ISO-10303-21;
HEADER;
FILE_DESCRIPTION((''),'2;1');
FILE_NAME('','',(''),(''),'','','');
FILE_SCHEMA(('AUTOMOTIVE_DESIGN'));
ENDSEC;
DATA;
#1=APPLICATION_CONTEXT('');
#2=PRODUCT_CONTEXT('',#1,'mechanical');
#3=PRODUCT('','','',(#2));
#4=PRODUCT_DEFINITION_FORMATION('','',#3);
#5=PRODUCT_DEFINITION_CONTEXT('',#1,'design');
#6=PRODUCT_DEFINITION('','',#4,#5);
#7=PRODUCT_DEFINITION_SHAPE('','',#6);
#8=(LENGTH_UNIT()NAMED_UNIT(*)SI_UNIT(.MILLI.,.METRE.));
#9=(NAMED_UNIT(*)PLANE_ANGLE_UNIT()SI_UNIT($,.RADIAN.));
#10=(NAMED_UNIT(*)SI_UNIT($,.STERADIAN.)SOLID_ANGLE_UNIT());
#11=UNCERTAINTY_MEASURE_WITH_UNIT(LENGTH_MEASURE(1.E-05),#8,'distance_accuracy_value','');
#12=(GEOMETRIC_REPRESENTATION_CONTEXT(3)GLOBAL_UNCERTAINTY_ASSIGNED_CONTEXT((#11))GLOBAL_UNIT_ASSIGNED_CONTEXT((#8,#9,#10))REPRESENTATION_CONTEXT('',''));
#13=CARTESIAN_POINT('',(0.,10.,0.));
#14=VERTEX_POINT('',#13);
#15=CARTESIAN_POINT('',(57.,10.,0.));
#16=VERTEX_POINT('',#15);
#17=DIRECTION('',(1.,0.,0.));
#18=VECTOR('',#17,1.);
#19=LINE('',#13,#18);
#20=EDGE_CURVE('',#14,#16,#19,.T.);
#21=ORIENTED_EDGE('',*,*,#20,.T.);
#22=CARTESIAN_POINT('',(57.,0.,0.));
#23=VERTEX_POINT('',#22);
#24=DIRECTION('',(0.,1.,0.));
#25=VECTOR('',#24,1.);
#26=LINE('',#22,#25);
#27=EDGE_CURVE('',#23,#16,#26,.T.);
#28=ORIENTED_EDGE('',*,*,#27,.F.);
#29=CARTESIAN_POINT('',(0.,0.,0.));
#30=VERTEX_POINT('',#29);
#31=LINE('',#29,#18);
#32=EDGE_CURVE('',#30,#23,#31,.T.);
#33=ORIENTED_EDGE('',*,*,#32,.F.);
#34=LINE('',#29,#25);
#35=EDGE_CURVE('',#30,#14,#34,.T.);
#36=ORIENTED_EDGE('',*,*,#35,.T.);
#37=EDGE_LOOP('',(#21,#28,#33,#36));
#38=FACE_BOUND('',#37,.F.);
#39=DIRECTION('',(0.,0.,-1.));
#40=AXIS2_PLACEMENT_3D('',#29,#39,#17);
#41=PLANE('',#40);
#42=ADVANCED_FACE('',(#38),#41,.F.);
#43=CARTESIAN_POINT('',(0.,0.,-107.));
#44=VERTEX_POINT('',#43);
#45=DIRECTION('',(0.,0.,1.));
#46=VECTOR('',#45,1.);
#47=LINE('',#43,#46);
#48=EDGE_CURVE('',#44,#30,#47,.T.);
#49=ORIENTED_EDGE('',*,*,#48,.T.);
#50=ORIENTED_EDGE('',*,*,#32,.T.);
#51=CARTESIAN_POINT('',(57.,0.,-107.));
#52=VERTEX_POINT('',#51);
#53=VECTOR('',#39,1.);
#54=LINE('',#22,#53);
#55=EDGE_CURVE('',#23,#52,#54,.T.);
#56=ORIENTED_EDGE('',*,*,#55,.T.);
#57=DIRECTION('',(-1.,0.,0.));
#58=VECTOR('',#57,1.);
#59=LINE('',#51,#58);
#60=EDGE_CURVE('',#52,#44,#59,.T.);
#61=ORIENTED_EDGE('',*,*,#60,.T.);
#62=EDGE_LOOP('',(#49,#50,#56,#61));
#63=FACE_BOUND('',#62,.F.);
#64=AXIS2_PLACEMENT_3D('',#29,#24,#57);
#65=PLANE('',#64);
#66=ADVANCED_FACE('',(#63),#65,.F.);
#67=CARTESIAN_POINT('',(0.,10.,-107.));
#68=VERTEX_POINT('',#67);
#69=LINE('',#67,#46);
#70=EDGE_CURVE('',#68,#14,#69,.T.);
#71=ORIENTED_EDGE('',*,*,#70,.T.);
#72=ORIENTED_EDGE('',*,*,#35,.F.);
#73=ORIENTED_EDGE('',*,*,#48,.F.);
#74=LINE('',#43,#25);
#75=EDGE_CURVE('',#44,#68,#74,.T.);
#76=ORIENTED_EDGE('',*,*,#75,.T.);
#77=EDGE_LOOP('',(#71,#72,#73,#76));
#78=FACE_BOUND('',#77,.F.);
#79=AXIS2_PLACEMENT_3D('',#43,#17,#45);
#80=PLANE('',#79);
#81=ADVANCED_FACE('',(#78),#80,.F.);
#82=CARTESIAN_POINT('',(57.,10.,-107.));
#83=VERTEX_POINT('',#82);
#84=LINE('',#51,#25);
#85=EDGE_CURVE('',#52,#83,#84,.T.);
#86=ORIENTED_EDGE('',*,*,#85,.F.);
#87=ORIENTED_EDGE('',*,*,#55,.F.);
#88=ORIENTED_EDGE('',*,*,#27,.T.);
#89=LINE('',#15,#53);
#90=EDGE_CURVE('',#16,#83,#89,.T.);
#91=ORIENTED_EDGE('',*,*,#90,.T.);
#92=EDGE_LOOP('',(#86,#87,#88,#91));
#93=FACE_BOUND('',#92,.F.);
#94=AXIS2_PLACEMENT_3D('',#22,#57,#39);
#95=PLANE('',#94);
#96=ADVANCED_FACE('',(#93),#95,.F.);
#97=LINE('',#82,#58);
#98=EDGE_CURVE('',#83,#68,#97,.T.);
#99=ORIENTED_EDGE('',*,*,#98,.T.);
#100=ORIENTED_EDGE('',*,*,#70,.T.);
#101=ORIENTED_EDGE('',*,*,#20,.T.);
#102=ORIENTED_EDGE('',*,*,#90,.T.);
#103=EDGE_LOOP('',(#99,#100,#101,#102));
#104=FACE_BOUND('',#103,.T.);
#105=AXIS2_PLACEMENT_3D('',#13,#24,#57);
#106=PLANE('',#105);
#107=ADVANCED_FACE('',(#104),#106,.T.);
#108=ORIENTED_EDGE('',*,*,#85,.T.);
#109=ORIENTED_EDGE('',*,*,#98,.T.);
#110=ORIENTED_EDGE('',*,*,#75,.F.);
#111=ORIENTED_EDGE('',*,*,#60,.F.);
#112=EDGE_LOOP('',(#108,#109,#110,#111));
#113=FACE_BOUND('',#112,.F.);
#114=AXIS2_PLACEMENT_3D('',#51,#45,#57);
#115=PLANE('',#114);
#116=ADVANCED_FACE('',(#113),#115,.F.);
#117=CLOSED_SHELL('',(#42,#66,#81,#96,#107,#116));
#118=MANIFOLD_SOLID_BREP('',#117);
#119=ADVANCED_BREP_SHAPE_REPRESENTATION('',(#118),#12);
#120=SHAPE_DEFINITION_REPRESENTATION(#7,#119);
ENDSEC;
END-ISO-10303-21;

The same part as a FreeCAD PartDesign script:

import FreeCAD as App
import Part
import Sketcher
from FreeCAD import Vector

doc = App.newDocument("Part")
params = doc.addObject("Spreadsheet::Sheet", "Params")
for row, (alias, value) in enumerate([
    ("sketch1_width", "57 mm"),
    ("sketch1_height", "107 mm"),
    ("pad1_length", "10 mm"),
], start=1):
    params.set(f"A{row}", alias)
    params.set(f"B{row}", "=" + value)
    params.setAlias(f"B{row}", alias)

body = doc.addObject("PartDesign::Body", "Body")

# Sketch on XZ plane
sketch1 = doc.addObject("Sketcher::SketchObject", "Sketch")
body.addObject(sketch1)
sketch1.AttachmentSupport = (doc.XZ_Plane, [""])
sketch1.MapMode = "FlatFace"
sketch1.addGeometry([
    Part.LineSegment(Vector(0, -107, 0), Vector(0, 0, 0)),
    Part.LineSegment(Vector(0, 0, 0), Vector(57, 0, 0)),
    Part.LineSegment(Vector(57, 0, 0), Vector(57, -107, 0)),
    Part.LineSegment(Vector(57, -107, 0), Vector(0, -107, 0)),
], False)
sketch1.addConstraint([
    Sketcher.Constraint("Coincident", 0, 2, 1, 1),
    Sketcher.Constraint("Coincident", 1, 2, 2, 1),
    Sketcher.Constraint("Coincident", 2, 2, 3, 1),
    Sketcher.Constraint("Coincident", 3, 2, 0, 1),
    Sketcher.Constraint("Vertical", 0),
    Sketcher.Constraint("Horizontal", 1),
    Sketcher.Constraint("Vertical", 2),
    Sketcher.Constraint("Horizontal", 3),
    Sketcher.Constraint("Coincident", 0, 2, -1, 1),
    Sketcher.Constraint("DistanceX", 1, 1, 1, 2, 57.0),
    Sketcher.Constraint("DistanceY", 0, 1, 0, 2, 107.0),
])
sketch1.setExpression("Constraints[9]", "Params.sketch1_width")
sketch1.setExpression("Constraints[10]", "Params.sketch1_height")
pad1 = doc.addObject("PartDesign::Pad", "Pad")
body.addObject(pad1)
pad1.Profile = sketch1
pad1.setExpression("Length", "Params.pad1_length")
pad1.Reversed = True

doc.recompute()
